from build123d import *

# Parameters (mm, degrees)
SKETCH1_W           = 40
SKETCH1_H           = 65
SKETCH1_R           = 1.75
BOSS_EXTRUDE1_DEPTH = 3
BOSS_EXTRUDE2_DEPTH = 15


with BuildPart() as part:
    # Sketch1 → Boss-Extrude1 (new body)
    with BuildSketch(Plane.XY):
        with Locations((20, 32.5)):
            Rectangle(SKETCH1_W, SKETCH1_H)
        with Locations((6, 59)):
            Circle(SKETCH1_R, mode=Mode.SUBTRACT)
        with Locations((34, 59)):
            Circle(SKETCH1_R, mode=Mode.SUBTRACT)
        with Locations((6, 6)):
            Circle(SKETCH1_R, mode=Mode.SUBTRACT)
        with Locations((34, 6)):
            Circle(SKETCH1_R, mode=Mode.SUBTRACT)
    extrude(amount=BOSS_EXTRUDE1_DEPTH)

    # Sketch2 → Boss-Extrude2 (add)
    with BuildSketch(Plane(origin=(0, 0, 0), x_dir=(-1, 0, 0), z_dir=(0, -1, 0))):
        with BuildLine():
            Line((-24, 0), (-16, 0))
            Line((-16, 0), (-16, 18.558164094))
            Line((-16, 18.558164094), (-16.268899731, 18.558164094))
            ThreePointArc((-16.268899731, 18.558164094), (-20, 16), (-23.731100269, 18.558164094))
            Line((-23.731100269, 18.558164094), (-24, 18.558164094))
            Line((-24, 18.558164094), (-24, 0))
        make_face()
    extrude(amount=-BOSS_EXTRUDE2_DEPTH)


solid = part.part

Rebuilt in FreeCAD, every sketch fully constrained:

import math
import FreeCAD as App
import Part
import Sketcher
from FreeCAD import Vector

doc = App.newDocument("Part")
params = doc.addObject("Spreadsheet::Sheet", "Params")
for row, (alias, value) in enumerate([
    ("sketch1_diameter", "3.5 mm"),
    ("sketch1_width", "40 mm"),
    ("sketch1_height", "65 mm"),
    ("pad1_length", "3 mm"),
    ("sketch2_radius", "4 mm"),
    ("sketch2_width", "8 mm"),
    ("pad2_length", "15 mm"),
], start=1):
    params.set(f"A{row}", alias)
    params.set(f"B{row}", "=" + value)
    params.setAlias(f"B{row}", alias)

body = doc.addObject("PartDesign::Body", "Body")

# Sketch on XY plane
sketch1 = body.newObject("Sketcher::SketchObject", "Sketch")
sketch1.AttachmentSupport = (doc.getObject("XY_Plane"), [""])
sketch1.MapMode = "FlatFace"
sketch1.addGeometry(Part.LineSegment(Vector(0, 65, 0), Vector(0, 0, 0)), False)
sketch1.addGeometry(Part.LineSegment(Vector(0, 0, 0), Vector(40, 0, 0)), False)
sketch1.addGeometry(Part.LineSegment(Vector(40, 0, 0), Vector(40, 65, 0)), False)
sketch1.addGeometry(Part.LineSegment(Vector(40, 65, 0), Vector(0, 65, 0)), False)
sketch1.addGeometry(Part.Circle(Vector(6, 6, 0), Vector(0, 0, 1), 1.8), False)
sketch1.addGeometry(Part.Circle(Vector(34, 6, 0), Vector(0, 0, 1), 1.8), False)
sketch1.addGeometry(Part.Circle(Vector(6, 59, 0), Vector(0, 0, 1), 1.8), False)
sketch1.addGeometry(Part.Circle(Vector(34, 59, 0), Vector(0, 0, 1), 1.8), False)
sketch1.addConstraint(Sketcher.Constraint("Coincident", 0, 2, 1, 1))
sketch1.addConstraint(Sketcher.Constraint("Coincident", 1, 2, 2, 1))
sketch1.addConstraint(Sketcher.Constraint("Coincident", 2, 2, 3, 1))
sketch1.addConstraint(Sketcher.Constraint("Coincident", 3, 2, 0, 1))
sketch1.addConstraint(Sketcher.Constraint("Vertical", 0))
sketch1.addConstraint(Sketcher.Constraint("Horizontal", 1))
sketch1.addConstraint(Sketcher.Constraint("Vertical", 2))
sketch1.addConstraint(Sketcher.Constraint("Horizontal", 3))
sketch1.addConstraint(Sketcher.Constraint("Coincident", 0, 2, -1, 1))
sketch1.addConstraint(Sketcher.Constraint("Equal", 4, 5))
sketch1.addConstraint(Sketcher.Constraint("Equal", 5, 6))
sketch1.addConstraint(Sketcher.Constraint("Equal", 6, 7))
sketch1.addConstraint(Sketcher.Constraint("Horizontal", 4, 3, 5, 3))
sketch1.addConstraint(Sketcher.Constraint("Horizontal", 6, 3, 7, 3))
sketch1.addConstraint(Sketcher.Constraint("Vertical", 4, 3, 6, 3))
sketch1.addConstraint(Sketcher.Constraint("Vertical", 5, 3, 7, 3))
sketch1.addConstraint(Sketcher.Constraint("Diameter", 4, 3.5))
sketch1.addConstraint(Sketcher.Constraint("DistanceX", 1, 1, 1, 2, 40.0))
sketch1.addConstraint(Sketcher.Constraint("DistanceY", 0, 2, 0, 1, 65.0))
sketch1.addConstraint(Sketcher.Constraint("DistanceX", -1, 1, 4, 3, 6.0))
sketch1.addConstraint(Sketcher.Constraint("DistanceY", -1, 1, 4, 3, 6.0))
sketch1.addConstraint(Sketcher.Constraint("DistanceX", -1, 1, 5, 3, 34.0))
sketch1.addConstraint(Sketcher.Constraint("DistanceY", -1, 1, 6, 3, 59.0))
sketch1.setExpression("Constraints[16]", "Params.sketch1_diameter")
sketch1.setExpression("Constraints[17]", "Params.sketch1_width")
sketch1.setExpression("Constraints[18]", "Params.sketch1_height")
pad1 = body.newObject("PartDesign::Pad", "Pad")
pad1.Profile = sketch1
pad1.setExpression("Length", "Params.pad1_length")

# Sketch on XZ plane
sketch2 = body.newObject("Sketcher::SketchObject", "Sketch001")
sketch2.AttachmentSupport = (doc.getObject("XZ_Plane"), [""])
sketch2.MapMode = "FlatFace"
sketch2.addGeometry(Part.LineSegment(Vector(24, 0, 0), Vector(16, 0, 0)), False)
sketch2.addGeometry(Part.LineSegment(Vector(16, 0, 0), Vector(16, -18.56, 0)), False)
sketch2.addGeometry(Part.LineSegment(Vector(16, -18.56, 0), Vector(16.27, -18.56, 0)), False)
sketch2.addGeometry(Part.ArcOfCircle(Part.Circle(Vector(20, -20, 0), Vector(0, 0, 1), 4), math.radians(21), math.radians(159)), False)
sketch2.addGeometry(Part.LineSegment(Vector(23.73, -18.56, 0), Vector(24, -18.56, 0)), False)
sketch2.addGeometry(Part.LineSegment(Vector(24, -18.56, 0), Vector(24, 0, 0)), False)
sketch2.addConstraint(Sketcher.Constraint("Coincident", 0, 2, 1, 1))
sketch2.addConstraint(Sketcher.Constraint("Coincident", 1, 2, 2, 1))
sketch2.addConstraint(Sketcher.Constraint("Coincident", 2, 2, 3, 2))
sketch2.addConstraint(Sketcher.Constraint("Coincident", 3, 1, 4, 1))
sketch2.addConstraint(Sketcher.Constraint("Coincident", 4, 2, 5, 1))
sketch2.addConstraint(Sketcher.Constraint("Coincident", 5, 2, 0, 1))
sketch2.addConstraint(Sketcher.Constraint("Horizontal", 0))
sketch2.addConstraint(Sketcher.Constraint("Vertical", 1))
sketch2.addConstraint(Sketcher.Constraint("Horizontal", 2))
sketch2.addConstraint(Sketcher.Constraint("Horizontal", 4))
sketch2.addConstraint(Sketcher.Constraint("Vertical", 5))
sketch2.addConstraint(Sketcher.Constraint("PointOnObject", 0, 2, -1))
sketch2.addConstraint(Sketcher.Constraint("Horizontal", 2, 2, 3, 1))
sketch2.addConstraint(Sketcher.Constraint("Equal", 2, 4))
sketch2.addConstraint(Sketcher.Constraint("Radius", 3, 4.0))
sketch2.addConstraint(Sketcher.Constraint("DistanceX", 0, 2, 0, 1, 8.0))
sketch2.addConstraint(Sketcher.Constraint("DistanceX", -1, 1, 3, 3, 20.0))
sketch2.addConstraint(Sketcher.Constraint("DistanceY", 3, 3, -1, 1, 20.0))
sketch2.addConstraint(Sketcher.Constraint("DistanceX", 2, 1, 2, 2, 0.2689))
sketch2.setExpression("Constraints[14]", "Params.sketch2_radius")
sketch2.setExpression("Constraints[15]", "Params.sketch2_width")
pad2 = body.newObject("PartDesign::Pad", "Pad001")
pad2.Profile = sketch2
pad2.setExpression("Length", "Params.pad2_length")
pad2.Reversed = True

doc.recompute()
